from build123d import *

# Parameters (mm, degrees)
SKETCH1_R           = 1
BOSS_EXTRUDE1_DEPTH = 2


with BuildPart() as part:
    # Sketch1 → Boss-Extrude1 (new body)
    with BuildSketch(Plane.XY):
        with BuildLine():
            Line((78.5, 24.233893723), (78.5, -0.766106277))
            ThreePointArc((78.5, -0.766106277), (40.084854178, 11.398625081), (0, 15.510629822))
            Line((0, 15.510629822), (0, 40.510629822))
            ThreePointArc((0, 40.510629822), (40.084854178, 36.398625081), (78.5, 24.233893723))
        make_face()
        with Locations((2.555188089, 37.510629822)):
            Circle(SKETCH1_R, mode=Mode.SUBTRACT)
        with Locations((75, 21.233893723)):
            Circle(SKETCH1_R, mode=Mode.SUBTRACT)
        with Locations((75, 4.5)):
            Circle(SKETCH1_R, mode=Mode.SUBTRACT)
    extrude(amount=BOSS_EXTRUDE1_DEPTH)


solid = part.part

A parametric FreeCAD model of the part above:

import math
import FreeCAD as App
import Part
import Sketcher

V = App.Vector

doc = App.newDocument("Part")
body = doc.addObject("PartDesign::Body", "Body")

# Sketch on XY plane
sketch1 = body.newObject("Sketcher::SketchObject", "Sketch")
sketch1.AttachmentSupport = (doc.getObject("XY_Plane"), [""])
sketch1.MapMode = "FlatFace"
sketch1.addGeometry(Part.LineSegment(V(78.5, -0.766106, 0), V(78.5, 24.233894, 0)), False)
sketch1.addGeometry(Part.ArcOfCircle(Part.Circle(V(0, -156.923982, 0), V(0, 0, 1), 197.434612), math.radians(66.571772), math.radians(90)), False)
sketch1.addGeometry(Part.LineSegment(V(0, 40.51063, 0), V(0, 15.51063, 0)), False)
sketch1.addGeometry(Part.ArcOfCircle(Part.Circle(V(0, -181.923982, 0), V(0, 0, 1), 197.434612), math.radians(66.571772), math.radians(90)), False)
sketch1.addGeometry(Part.Circle(V(75, 4.5, 0), V(0, 0, 1), 1), False)
sketch1.addGeometry(Part.Circle(V(75, 21.233894, 0), V(0, 0, 1), 1), False)
sketch1.addGeometry(Part.Circle(V(2.555188, 37.51063, 0), V(0, 0, 1), 1), False)
sketch1.addConstraint(Sketcher.Constraint("Coincident", 0, 2, 1, 1))
sketch1.addConstraint(Sketcher.Constraint("Coincident", 1, 2, 2, 1))
sketch1.addConstraint(Sketcher.Constraint("Coincident", 2, 2, 3, 2))
sketch1.addConstraint(Sketcher.Constraint("Coincident", 3, 1, 0, 1))
sketch1.addConstraint(Sketcher.Constraint("Vertical", 0))
sketch1.addConstraint(Sketcher.Constraint("Vertical", 2))
sketch1.addConstraint(Sketcher.Constraint("Equal", 1, 3))
sketch1.addConstraint(Sketcher.Constraint("Equal", 4, 5))
sketch1.addConstraint(Sketcher.Constraint("Equal", 5, 6))
sketch1.addConstraint(Sketcher.Constraint("PointOnObject", 1, 3, -2))
sketch1.addConstraint(Sketcher.Constraint("PointOnObject", 3, 3, -2))
sketch1.addConstraint(Sketcher.Constraint("PointOnObject", 1, 2, -2))
sketch1.addConstraint(Sketcher.Constraint("Vertical", 4, 3, 5, 3))
sketch1.addConstraint(Sketcher.Constraint("Diameter", 4, 2.0))
sketch1.addConstraint(Sketcher.Constraint("DistanceY", 0, 1, 0, 2, 25.0))
sketch1.addConstraint(Sketcher.Constraint("DistanceX", -1, 1, 4, 3, 75.0))
sketch1.addConstraint(Sketcher.Constraint("DistanceY", 5, 3, 0, 2, 3.0))
sketch1.addConstraint(Sketcher.Constraint("DistanceY", 6, 3, 1, 2, 3.0))
sketch1.addConstraint(Sketcher.Constraint("DistanceY", -1, 1, 4, 3, 4.5))
sketch1.addConstraint(Sketcher.Constraint("DistanceX", -1, 1, 0, 2, 78.5))
sketch1.addConstraint(Sketcher.Constraint("Radius", 1, 197.434612))
sketch1.addConstraint(Sketcher.Constraint("DistanceY", 1, 3, -1, 1, 156.923982))
sketch1.addConstraint(Sketcher.Constraint("DistanceX", -1, 1, 6, 3, 2.555188))
pad1 = body.newObject("PartDesign::Pad", "Pad")
pad1.Profile = sketch1
pad1.Length = 2

doc.recompute()
